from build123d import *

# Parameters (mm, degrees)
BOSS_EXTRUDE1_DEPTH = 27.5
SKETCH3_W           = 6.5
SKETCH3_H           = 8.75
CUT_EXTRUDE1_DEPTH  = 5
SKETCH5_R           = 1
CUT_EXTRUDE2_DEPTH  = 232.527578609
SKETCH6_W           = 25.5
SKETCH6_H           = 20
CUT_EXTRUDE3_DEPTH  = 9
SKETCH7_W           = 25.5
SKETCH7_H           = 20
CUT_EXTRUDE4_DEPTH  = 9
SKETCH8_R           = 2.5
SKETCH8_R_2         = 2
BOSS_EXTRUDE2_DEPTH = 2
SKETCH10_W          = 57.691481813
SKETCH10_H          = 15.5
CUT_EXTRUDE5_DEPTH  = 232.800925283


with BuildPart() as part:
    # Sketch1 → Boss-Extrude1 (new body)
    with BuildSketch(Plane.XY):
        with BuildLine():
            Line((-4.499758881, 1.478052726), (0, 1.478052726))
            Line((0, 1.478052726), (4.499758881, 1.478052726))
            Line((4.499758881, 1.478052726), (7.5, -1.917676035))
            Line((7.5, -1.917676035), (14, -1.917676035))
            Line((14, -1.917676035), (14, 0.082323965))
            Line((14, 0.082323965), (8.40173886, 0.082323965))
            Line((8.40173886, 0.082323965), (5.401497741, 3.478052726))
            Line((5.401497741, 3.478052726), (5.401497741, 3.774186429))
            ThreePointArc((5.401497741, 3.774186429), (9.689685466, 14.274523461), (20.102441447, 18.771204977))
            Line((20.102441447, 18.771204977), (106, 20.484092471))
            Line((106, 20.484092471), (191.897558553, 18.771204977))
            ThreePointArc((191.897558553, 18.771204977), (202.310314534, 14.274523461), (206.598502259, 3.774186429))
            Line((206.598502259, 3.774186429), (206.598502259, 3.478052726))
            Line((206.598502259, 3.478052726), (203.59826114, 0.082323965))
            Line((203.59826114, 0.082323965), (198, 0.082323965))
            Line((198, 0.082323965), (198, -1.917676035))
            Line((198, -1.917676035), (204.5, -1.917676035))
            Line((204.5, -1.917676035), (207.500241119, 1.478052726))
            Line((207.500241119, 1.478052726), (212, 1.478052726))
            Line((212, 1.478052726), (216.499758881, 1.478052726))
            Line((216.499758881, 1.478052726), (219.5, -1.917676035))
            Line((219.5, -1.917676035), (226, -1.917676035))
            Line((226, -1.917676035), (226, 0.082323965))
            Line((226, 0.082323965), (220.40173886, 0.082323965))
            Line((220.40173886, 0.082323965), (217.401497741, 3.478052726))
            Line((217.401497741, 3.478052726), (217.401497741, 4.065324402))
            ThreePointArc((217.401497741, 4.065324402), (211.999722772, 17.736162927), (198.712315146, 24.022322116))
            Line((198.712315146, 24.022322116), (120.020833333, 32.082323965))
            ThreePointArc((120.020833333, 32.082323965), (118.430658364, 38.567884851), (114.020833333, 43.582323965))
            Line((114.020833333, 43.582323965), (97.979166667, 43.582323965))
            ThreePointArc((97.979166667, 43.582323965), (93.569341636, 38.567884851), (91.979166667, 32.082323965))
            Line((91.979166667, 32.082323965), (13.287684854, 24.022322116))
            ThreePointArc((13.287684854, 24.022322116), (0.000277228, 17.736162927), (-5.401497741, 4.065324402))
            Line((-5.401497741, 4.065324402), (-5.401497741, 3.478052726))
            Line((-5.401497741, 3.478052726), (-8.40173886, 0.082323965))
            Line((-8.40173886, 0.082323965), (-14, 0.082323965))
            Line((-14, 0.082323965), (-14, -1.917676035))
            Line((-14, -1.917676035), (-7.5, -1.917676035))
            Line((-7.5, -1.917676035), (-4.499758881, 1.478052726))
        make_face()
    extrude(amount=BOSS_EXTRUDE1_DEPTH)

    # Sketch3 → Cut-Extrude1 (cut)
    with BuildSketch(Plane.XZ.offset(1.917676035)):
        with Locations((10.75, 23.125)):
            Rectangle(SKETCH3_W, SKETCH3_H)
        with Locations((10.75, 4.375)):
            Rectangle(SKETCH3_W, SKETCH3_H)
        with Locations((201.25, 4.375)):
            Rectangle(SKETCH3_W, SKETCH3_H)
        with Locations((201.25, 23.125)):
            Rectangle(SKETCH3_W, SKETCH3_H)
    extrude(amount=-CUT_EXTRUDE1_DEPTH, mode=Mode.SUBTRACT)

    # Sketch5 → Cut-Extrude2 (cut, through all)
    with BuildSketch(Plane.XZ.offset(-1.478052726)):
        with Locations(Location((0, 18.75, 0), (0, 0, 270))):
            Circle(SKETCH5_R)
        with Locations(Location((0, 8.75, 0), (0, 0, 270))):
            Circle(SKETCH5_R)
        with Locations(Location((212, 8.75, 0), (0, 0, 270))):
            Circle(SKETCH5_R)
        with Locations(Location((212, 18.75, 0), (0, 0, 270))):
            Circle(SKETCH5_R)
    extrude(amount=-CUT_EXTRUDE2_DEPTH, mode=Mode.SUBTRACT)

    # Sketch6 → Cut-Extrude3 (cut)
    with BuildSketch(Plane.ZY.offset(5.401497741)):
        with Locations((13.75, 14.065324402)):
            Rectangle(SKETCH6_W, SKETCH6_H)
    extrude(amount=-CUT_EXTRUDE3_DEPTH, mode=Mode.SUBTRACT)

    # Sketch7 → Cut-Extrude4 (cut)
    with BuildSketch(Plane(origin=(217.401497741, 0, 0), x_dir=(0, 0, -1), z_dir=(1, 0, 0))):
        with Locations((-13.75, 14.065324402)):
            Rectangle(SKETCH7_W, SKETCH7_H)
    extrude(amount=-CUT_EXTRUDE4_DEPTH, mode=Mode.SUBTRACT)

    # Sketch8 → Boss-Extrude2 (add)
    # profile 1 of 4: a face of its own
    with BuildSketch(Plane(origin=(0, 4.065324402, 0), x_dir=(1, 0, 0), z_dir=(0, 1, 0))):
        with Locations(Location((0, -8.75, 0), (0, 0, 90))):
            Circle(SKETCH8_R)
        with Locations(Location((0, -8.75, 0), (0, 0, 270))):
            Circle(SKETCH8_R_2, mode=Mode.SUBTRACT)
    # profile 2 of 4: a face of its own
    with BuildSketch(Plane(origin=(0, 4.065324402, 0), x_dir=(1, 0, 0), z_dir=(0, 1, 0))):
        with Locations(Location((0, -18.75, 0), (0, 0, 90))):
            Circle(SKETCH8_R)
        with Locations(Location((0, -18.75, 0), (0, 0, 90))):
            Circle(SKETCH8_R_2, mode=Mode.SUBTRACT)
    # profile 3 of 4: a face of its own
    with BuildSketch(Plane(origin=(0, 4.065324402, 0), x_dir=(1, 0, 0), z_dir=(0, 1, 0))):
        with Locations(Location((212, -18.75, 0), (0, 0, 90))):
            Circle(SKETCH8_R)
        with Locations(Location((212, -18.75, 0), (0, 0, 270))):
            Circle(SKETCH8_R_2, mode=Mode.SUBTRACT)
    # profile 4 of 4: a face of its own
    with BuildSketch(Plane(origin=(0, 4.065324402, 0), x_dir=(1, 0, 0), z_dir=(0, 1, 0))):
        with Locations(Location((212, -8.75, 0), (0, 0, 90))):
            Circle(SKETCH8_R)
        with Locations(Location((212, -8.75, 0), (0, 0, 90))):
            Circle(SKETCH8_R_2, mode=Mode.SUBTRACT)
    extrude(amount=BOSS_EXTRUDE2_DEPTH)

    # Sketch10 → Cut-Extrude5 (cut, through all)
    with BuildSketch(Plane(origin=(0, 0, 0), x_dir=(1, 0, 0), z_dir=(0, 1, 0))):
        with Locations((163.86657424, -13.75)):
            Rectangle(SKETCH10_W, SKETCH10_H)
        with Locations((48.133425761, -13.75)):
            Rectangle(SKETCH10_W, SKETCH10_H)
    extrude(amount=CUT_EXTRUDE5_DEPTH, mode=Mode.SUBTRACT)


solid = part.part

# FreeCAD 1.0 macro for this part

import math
import FreeCAD as App
import Part
import Sketcher
Q = App.Units.Quantity


def add_polygon(sketch, points):
    """Adds a closed chain of lines whose ends are joined by coincident constraints."""
    first, n = sketch.GeometryCount, len(points)
    for a, b in zip(points, points[1:] + points[:1]):
        sketch.addGeometry(Part.LineSegment(App.Vector(*a, 0), App.Vector(*b, 0)), False)
    for i in range(n):
        sketch.addConstraint(Sketcher.Constraint("Coincident", first + i, 2, first + (i + 1) % n, 1))

doc = App.newDocument("Part")
params = doc.addObject("Spreadsheet::Sheet", "Params")
for row, (alias, value) in enumerate([
    ("sketch1_radius", "15 mm"),
    ("sketch1_radius2", "20 mm"),
    ("sketch1_height", "2 mm"),
    ("sketch1_width", "6.5 mm"),
    ("pad1_length", "27.5 mm"),
    ("sketch2_width", "6.5 mm"),
    ("sketch2_height", "8.75 mm"),
    ("pocket1_length", "5 mm"),
    ("sketch3_diameter", "2 mm"),
    ("sketch4_width", "20 mm"),
    ("sketch4_height", "25.5 mm"),
    ("pocket3_length", "9 mm"),
    ("sketch5_width", "20 mm"),
    ("sketch5_height", "25.5 mm"),
    ("pocket4_length", "9 mm"),
    ("sketch6_diameter", "5 mm"),
    ("sketch6_diameter2", "4 mm"),
    ("pad2_length", "2 mm"),
    ("sketch7_height", "15.5 mm"),
], start=1):
    params.set(f"A{row}", alias)
    params.set(f"B{row}", "=" + value)
    params.setAlias(f"B{row}", alias)

body = doc.addObject("PartDesign::Body", "Body")

# Sketch on XY plane
sketch1 = body.newObject("Sketcher::SketchObject", "Sketch")
sketch1.AttachmentSupport = (doc.getObject("XY_Plane"), [""])
sketch1.MapMode = "FlatFace"
sketch1.addGeometry([
    Part.LineSegment(App.Vector(-4.499759, 1.478053, 0), App.Vector(4.499759, 1.478053, 0)),  # 0
    Part.LineSegment(App.Vector(4.499759, 1.478053, 0), App.Vector(7.5, -1.917676, 0)),  # 1
    Part.LineSegment(App.Vector(7.5, -1.917676, 0), App.Vector(14, -1.917676, 0)),  # 2
    Part.LineSegment(App.Vector(14, -1.917676, 0), App.Vector(14, 0.082324, 0)),  # 3
    Part.LineSegment(App.Vector(14, 0.082324, 0), App.Vector(8.401739, 0.082324, 0)),  # 4
    Part.LineSegment(App.Vector(8.401739, 0.082324, 0), App.Vector(5.401498, 3.478053, 0)),  # 5
    Part.LineSegment(App.Vector(5.401498, 3.478053, 0), App.Vector(5.401498, 3.774186, 0)),  # 6
    Part.ArcOfCircle(Part.Circle(App.Vector(20.401498, 3.774186, 0), App.Vector(0, 0, 1), 15), math.radians(91.142387), math.radians(180)),  # 7
    Part.LineSegment(App.Vector(20.102441, 18.771205, 0), App.Vector(106, 20.484092, 0)),  # 8
    Part.LineSegment(App.Vector(106, 20.484092, 0), App.Vector(191.897559, 18.771205, 0)),  # 9
    Part.ArcOfCircle(Part.Circle(App.Vector(191.598502, 3.774186, 0), App.Vector(0, 0, 1), 15), math.radians(0), math.radians(88.857613)),  # 10
    Part.LineSegment(App.Vector(206.598502, 3.774186, 0), App.Vector(206.598502, 3.478053, 0)),  # 11
    Part.LineSegment(App.Vector(206.598502, 3.478053, 0), App.Vector(203.598261, 0.082324, 0)),  # 12
    Part.LineSegment(App.Vector(203.598261, 0.082324, 0), App.Vector(198, 0.082324, 0)),  # 13
    Part.LineSegment(App.Vector(198, 0.082324, 0), App.Vector(198, -1.917676, 0)),  # 14
    Part.LineSegment(App.Vector(198, -1.917676, 0), App.Vector(204.5, -1.917676, 0)),  # 15
    Part.LineSegment(App.Vector(204.5, -1.917676, 0), App.Vector(207.500241, 1.478053, 0)),  # 16
    Part.LineSegment(App.Vector(207.500241, 1.478053, 0), App.Vector(216.499759, 1.478053, 0)),  # 17
    Part.LineSegment(App.Vector(216.499759, 1.478053, 0), App.Vector(219.5, -1.917676, 0)),  # 18
    Part.LineSegment(App.Vector(219.5, -1.917676, 0), App.Vector(226, -1.917676, 0)),  # 19
    Part.LineSegment(App.Vector(226, -1.917676, 0), App.Vector(226, 0.082324, 0)),  # 20
    Part.LineSegment(App.Vector(226, 0.082324, 0), App.Vector(220.401739, 0.082324, 0)),  # 21
    Part.LineSegment(App.Vector(220.401739, 0.082324, 0), App.Vector(217.401498, 3.478053, 0)),  # 22
    Part.LineSegment(App.Vector(217.401498, 3.478053, 0), App.Vector(217.401498, 4.065324, 0)),  # 23
    Part.ArcOfCircle(Part.Circle(App.Vector(197.401498, 4.065324, 0), App.Vector(0, 0, 1), 20), math.radians(0), math.radians(86.242091)),  # 24
    Part.LineSegment(App.Vector(198.712315, 24.022322, 0), App.Vector(120.020833, 32.082324, 0)),  # 25
    Part.ArcOfCircle(Part.Circle(App.Vector(106, 32.082324, 0), App.Vector(0, 0, 1), 14.020833), math.radians(0), math.radians(55.105623)),  # 26
    Part.LineSegment(App.Vector(114.020833, 43.582324, 0), App.Vector(97.979167, 43.582324, 0)),  # 27
    Part.ArcOfCircle(Part.Circle(App.Vector(106, 32.082324, 0), App.Vector(0, 0, 1), 14.020833), math.radians(124.894377), math.radians(180)),  # 28
    Part.LineSegment(App.Vector(91.979167, 32.082324, 0), App.Vector(13.287685, 24.022322, 0)),  # 29
    Part.ArcOfCircle(Part.Circle(App.Vector(14.598502, 4.065324, 0), App.Vector(0, 0, 1), 20), math.radians(93.757909), math.radians(180)),  # 30
    Part.LineSegment(App.Vector(-5.401498, 4.065324, 0), App.Vector(-5.401498, 3.478053, 0)),  # 31
    Part.LineSegment(App.Vector(-5.401498, 3.478053, 0), App.Vector(-8.401739, 0.082324, 0)),  # 32
    Part.LineSegment(App.Vector(-8.401739, 0.082324, 0), App.Vector(-14, 0.082324, 0)),  # 33
    Part.LineSegment(App.Vector(-14, 0.082324, 0), App.Vector(-14, -1.917676, 0)),  # 34
    Part.LineSegment(App.Vector(-14, -1.917676, 0), App.Vector(-7.5, -1.917676, 0)),  # 35
    Part.LineSegment(App.Vector(-7.5, -1.917676, 0), App.Vector(-4.499759, 1.478053, 0)),  # 36
], False)
sketch1.addConstraint([
    Sketcher.Constraint("Coincident", 0, 2, 1, 1),
    Sketcher.Constraint("Coincident", 1, 2, 2, 1),
    Sketcher.Constraint("Coincident", 2, 2, 3, 1),
    Sketcher.Constraint("Coincident", 3, 2, 4, 1),
    Sketcher.Constraint("Coincident", 4, 2, 5, 1),
    Sketcher.Constraint("Coincident", 5, 2, 6, 1),
    Sketcher.Constraint("Tangent", 6, 2, 7, 2),
    Sketcher.Constraint("Tangent", 7, 1, 8, 1),
    Sketcher.Constraint("Coincident", 8, 2, 9, 1),
    Sketcher.Constraint("Tangent", 9, 2, 10, 2),
    Sketcher.Constraint("Tangent", 10, 1, 11, 1),
    Sketcher.Constraint("Coincident", 11, 2, 12, 1),
    Sketcher.Constraint("Coincident", 12, 2, 13, 1),
    Sketcher.Constraint("Coincident", 13, 2, 14, 1),
    Sketcher.Constraint("Coincident", 14, 2, 15, 1),
    Sketcher.Constraint("Coincident", 15, 2, 16, 1),
    Sketcher.Constraint("Coincident", 16, 2, 17, 1),
    Sketcher.Constraint("Coincident", 17, 2, 18, 1),
    Sketcher.Constraint("Coincident", 18, 2, 19, 1),
    Sketcher.Constraint("Coincident", 19, 2, 20, 1),
    Sketcher.Constraint("Coincident", 20, 2, 21, 1),
    Sketcher.Constraint("Coincident", 21, 2, 22, 1),
    Sketcher.Constraint("Coincident", 22, 2, 23, 1),
    Sketcher.Constraint("Tangent", 23, 2, 24, 1),
    Sketcher.Constraint("Coincident", 24, 2, 25, 1),
    Sketcher.Constraint("Coincident", 25, 2, 26, 1),
    Sketcher.Constraint("Coincident", 26, 2, 27, 1),
    Sketcher.Constraint("Coincident", 27, 2, 28, 1),
    Sketcher.Constraint("Coincident", 28, 2, 29, 1),
    Sketcher.Constraint("Coincident", 29, 2, 30, 1),
    Sketcher.Constraint("Tangent", 30, 2, 31, 1),
    Sketcher.Constraint("Coincident", 31, 2, 32, 1),
    Sketcher.Constraint("Coincident", 32, 2, 33, 1),
    Sketcher.Constraint("Coincident", 33, 2, 34, 1),
    Sketcher.Constraint("Coincident", 34, 2, 35, 1),
    Sketcher.Constraint("Coincident", 35, 2, 36, 1),
    Sketcher.Constraint("Coincident", 36, 2, 0, 1),
    Sketcher.Constraint("Horizontal", 0),
    Sketcher.Constraint("Horizontal", 2),
    Sketcher.Constraint("Vertical", 3),
    Sketcher.Constraint("Horizontal", 4),
    Sketcher.Constraint("Vertical", 6),
    Sketcher.Constraint("Vertical", 11),
    Sketcher.Constraint("Horizontal", 13),
    Sketcher.Constraint("Vertical", 14),
    Sketcher.Constraint("Horizontal", 15),
    Sketcher.Constraint("Horizontal", 17),
    Sketcher.Constraint("Horizontal", 19),
    Sketcher.Constraint("Vertical", 20),
    Sketcher.Constraint("Horizontal", 21),
    Sketcher.Constraint("Vertical", 23),
    Sketcher.Constraint("Horizontal", 27),
    Sketcher.Constraint("Vertical", 31),
    Sketcher.Constraint("Horizontal", 33),
    Sketcher.Constraint("Vertical", 34),
    Sketcher.Constraint("Horizontal", 35),
    Sketcher.Constraint("Coincident", 28, 3, 26, 3),
    Sketcher.Constraint("Equal", 7, 10),
    Sketcher.Constraint("Equal", 26, 28),
    Sketcher.Constraint("Equal", 24, 30),
    Sketcher.Constraint("Symmetric", 5, 2, 31, 2, -2),
    Sketcher.Constraint("Symmetric", 4, 2, 32, 2, -2),
    Sketcher.Constraint("Symmetric", 2, 2, 34, 2, -2),
    Sketcher.Constraint("Parallel", 1, 5),
    Sketcher.Constraint("Parallel", 12, 16),
    Sketcher.Constraint("Parallel", 5, 18),
    Sketcher.Constraint("Parallel", 18, 22),
    Sketcher.Constraint("Parallel", 16, 32),
    Sketcher.Constraint("Parallel", 32, 36),
    Sketcher.Constraint("Horizontal", 7, 3, 10, 3),
    Sketcher.Constraint("Horizontal", 24, 3, 30, 3),
    Sketcher.Constraint("Horizontal", 5, 2, 11, 2),
    Sketcher.Constraint("Horizontal", 4, 2, 12, 2),
    Sketcher.Constraint("Horizontal", 2, 2, 14, 2),
    Sketcher.Constraint("Horizontal", 0, 2, 16, 2),
    Sketcher.Constraint("Horizontal", 15, 2, 18, 2),
    Sketcher.Constraint("Horizontal", 13, 2, 20, 2),
    Sketcher.Constraint("Horizontal", 11, 2, 22, 2),
    Sketcher.Constraint("Horizontal", 28, 3, 25, 2),
    Sketcher.Constraint("Horizontal", 25, 2, 28, 2),
    Sketcher.Constraint("Horizontal", 24, 2, 29, 2),
    Sketcher.Constraint("Vertical", 28, 3, 8, 2),
    Sketcher.Constraint("Equal", 4, 13),
    Sketcher.Constraint("Equal", 2, 15),
    Sketcher.Constraint("Equal", 0, 17),
    Sketcher.Constraint("Equal", 15, 19),
    Sketcher.Constraint("Equal", 13, 21),
    Sketcher.Constraint("Equal", 19, 35),
    Sketcher.Constraint("Equal", 1, 5),
    Sketcher.Constraint("Equal", 8, 9),
    Sketcher.Constraint("Radius", 7, Q("15 mm")),
    Sketcher.Constraint("Radius", 24, Q("20 mm")),
    Sketcher.Constraint("DistanceY", 3, 1, 3, 2, Q("2 mm")),
    Sketcher.Constraint("DistanceX", 2, 1, 2, 2, Q("6.5 mm")),
    Sketcher.Constraint("DistanceX", -1, 1, 26, 3, Q("106 mm")),
    Sketcher.Constraint("DistanceX", -1, 1, 2, 2, Q("14 mm")),
    Sketcher.Constraint("DistanceY", 1, 2, 28, 3, Q("34 mm")),
    Sketcher.Constraint("DistanceX", 26, 2, 25, 2, Q("6 mm")),
    Sketcher.Constraint("DistanceY", 25, 2, 26, 2, Q("11.5 mm")),
    Sketcher.Constraint("DistanceY", 24, 3, 26, 3, Q("28.017 mm")),
    Sketcher.Constraint("DistanceX", 4, 2, 4, 1, Q("5.598261 mm")),
    Sketcher.Constraint("DistanceY", 23, 1, 23, 2, Q("0.587272 mm")),
    Sketcher.Constraint("Distance", 1, Q("4.531271 mm")),
    Sketcher.Constraint("Distance", 25, Q("79.103179 mm")),
    Sketcher.Constraint("DistanceY", 6, 1, 6, 2, Q("0.296134 mm")),
    Sketcher.Constraint("DistanceX", -1, 1, 7, 1, Q("20.102441 mm")),
    Sketcher.Constraint("DistanceY", -1, 1, 7, 3, Q("3.774186 mm")),
])
sketch1.setExpression("Constraints[90]", "Params.sketch1_radius")
sketch1.setExpression("Constraints[91]", "Params.sketch1_radius2")
sketch1.setExpression("Constraints[92]", "Params.sketch1_height")
sketch1.setExpression("Constraints[93]", "Params.sketch1_width")
pad1 = body.newObject("PartDesign::Pad", "Pad")
pad1.Profile = sketch1
pad1.setExpression("Length", "Params.pad1_length")

# Sketch on XZ plane
sketch2 = body.newObject("Sketcher::SketchObject", "Sketch001")
sketch2.AttachmentSupport = (doc.getObject("XZ_Plane"), [""])
sketch2.MapMode = "FlatFace"
sketch2.AttachmentOffset = App.Placement(App.Vector(0, 0, 1.917676), App.Rotation())
add_polygon(sketch2, [(7.5, 27.5), (7.5, 18.75), (14, 18.75), (14, 27.5)])  # lines 0-3
add_polygon(sketch2, [(7.5, 8.75), (7.5, 0), (14, 0), (14, 8.75)])  # lines 4-7
add_polygon(sketch2, [(198, 8.75), (198, 0), (204.5, 0), (204.5, 8.75)])  # lines 8-11
add_polygon(sketch2, [(198, 27.5), (198, 18.75), (204.5, 18.75), (204.5, 27.5)])  # lines 12-15
sketch2.addConstraint([
    Sketcher.Constraint("Vertical", 0),
    Sketcher.Constraint("Horizontal", 1),
    Sketcher.Constraint("Vertical", 2),
    Sketcher.Constraint("Horizontal", 3),
    Sketcher.Constraint("Vertical", 4),
    Sketcher.Constraint("Horizontal", 5),
    Sketcher.Constraint("Vertical", 6),
    Sketcher.Constraint("Horizontal", 7),
    Sketcher.Constraint("Vertical", 8),
    Sketcher.Constraint("Horizontal", 9),
    Sketcher.Constraint("Vertical", 10),
    Sketcher.Constraint("Horizontal", 11),
    Sketcher.Constraint("Vertical", 12),
    Sketcher.Constraint("Horizontal", 13),
    Sketcher.Constraint("Vertical", 14),
    Sketcher.Constraint("Horizontal", 15),
    Sketcher.Constraint("PointOnObject", 4, 2, -1),
    Sketcher.Constraint("PointOnObject", 8, 2, -1),
    Sketcher.Constraint("Horizontal", 7, 2, 10, 2),
    Sketcher.Constraint("Horizontal", 1, 2, 12, 2),
    Sketcher.Constraint("Horizontal", 3, 2, 14, 2),
    Sketcher.Constraint("Vertical", 3, 2, 4, 2),
    Sketcher.Constraint("Vertical", 2, 2, 5, 2),
    Sketcher.Constraint("Vertical", 11, 2, 12, 2),
    Sketcher.Constraint("Vertical", 10, 2, 13, 2),
    Sketcher.Constraint("Equal", 7, 9),
    Sketcher.Constraint("Equal", 2, 4),
    Sketcher.Constraint("DistanceX", 1, 1, 1, 2, Q("6.5 mm")),
    Sketcher.Constraint("DistanceX", -1, 1, 1, 2, Q("14 mm")),
    Sketcher.Constraint("DistanceX", -1, 1, 8, 2, Q("198 mm")),
    Sketcher.Constraint("DistanceY", 6, 2, 1, 2, Q("10 mm")),
    Sketcher.Constraint("DistanceY", 0, 2, 0, 1, Q("8.75 mm")),
])
sketch2.setExpression("Constraints[43]", "Params.sketch2_width")
sketch2.setExpression("Constraints[47]", "Params.sketch2_height")
pocket1 = body.newObject("PartDesign::Pocket", "Pocket")
pocket1.Profile = sketch2
pocket1.setExpression("Length", "Params.pocket1_length")

# Sketch on XZ plane
sketch3 = body.newObject("Sketcher::SketchObject", "Sketch002")
sketch3.AttachmentSupport = (doc.getObject("XZ_Plane"), [""])
sketch3.MapMode = "FlatFace"
sketch3.AttachmentOffset = App.Placement(App.Vector(0, 0, -1.478053), App.Rotation())
sketch3.addGeometry([
    Part.Circle(App.Vector(0, 18.75, 0), App.Vector(0, 0, 1), 1),
    Part.Circle(App.Vector(0, 8.75, 0), App.Vector(0, 0, 1), 1),
    Part.Circle(App.Vector(212, 8.75, 0), App.Vector(0, 0, 1), 1),
    Part.Circle(App.Vector(212, 18.75, 0), App.Vector(0, 0, 1), 1),
], False)
sketch3.addConstraint([
    Sketcher.Constraint("Equal", 0, 1),
    Sketcher.Constraint("Equal", 1, 2),
    Sketcher.Constraint("Equal", 2, 3),
    Sketcher.Constraint("PointOnObject", 0, 3, -2),
    Sketcher.Constraint("PointOnObject", 1, 3, -2),
    Sketcher.Constraint("Horizontal", 1, 3, 2, 3),
    Sketcher.Constraint("Horizontal", 0, 3, 3, 3),
    Sketcher.Constraint("Vertical", 2, 3, 3, 3),
    Sketcher.Constraint("Diameter", 0, Q("2 mm")),
    Sketcher.Constraint("DistanceX", -1, 1, 2, 3, Q("212 mm")),
    Sketcher.Constraint("DistanceY", 1, 3, 0, 3, Q("10 mm")),
    Sketcher.Constraint("DistanceY", -1, 1, 0, 3, Q("18.75 mm")),
])
sketch3.setExpression("Constraints[8]", "Params.sketch3_diameter")
pocket2 = body.newObject("PartDesign::Pocket", "Pocket001")
pocket2.Profile = sketch3
pocket2.Type = "ThroughAll"

# Sketch on YZ plane
sketch4 = body.newObject("Sketcher::SketchObject", "Sketch003")
sketch4.AttachmentSupport = (doc.getObject("YZ_Plane"), [""])
sketch4.MapMode = "FlatFace"
sketch4.AttachmentOffset = App.Placement(App.Vector(0, 0, -5.401498), App.Rotation())
add_polygon(sketch4, [(24.065324, 1), (4.065324, 1), (4.065324, 26.5), (24.065324, 26.5)])  # lines 0-3
sketch4.addConstraint([
    Sketcher.Constraint("Horizontal", 0),
    Sketcher.Constraint("Vertical", 1),
    Sketcher.Constraint("Horizontal", 2),
    Sketcher.Constraint("Vertical", 3),
    Sketcher.Constraint("DistanceX", 0, 2, 0, 1, Q("20 mm")),
    Sketcher.Constraint("DistanceY", 1, 1, 1, 2, Q("25.5 mm")),
    Sketcher.Constraint("DistanceY", -1, 1, 0, 2, Q("1 mm")),
    Sketcher.Constraint("DistanceX", -1, 1, 0, 2, Q("4.065324 mm")),
])
sketch4.setExpression("Constraints[8]", "Params.sketch4_width")
sketch4.setExpression("Constraints[9]", "Params.sketch4_height")
pocket3 = body.newObject("PartDesign::Pocket", "Pocket002")
pocket3.Profile = sketch4
pocket3.setExpression("Length", "Params.pocket3_length")
pocket3.Reversed = True

# Sketch on YZ plane
sketch5 = body.newObject("Sketcher::SketchObject", "Sketch004")
sketch5.AttachmentSupport = (doc.getObject("YZ_Plane"), [""])
sketch5.MapMode = "FlatFace"
sketch5.AttachmentOffset = App.Placement(App.Vector(0, 0, 217.401498), App.Rotation())
add_polygon(sketch5, [(24.065324, 26.5), (4.065324, 26.5), (4.065324, 1), (24.065324, 1)])  # lines 0-3
sketch5.addConstraint([
    Sketcher.Constraint("Horizontal", 0),
    Sketcher.Constraint("Vertical", 1),
    Sketcher.Constraint("Horizontal", 2),
    Sketcher.Constraint("Vertical", 3),
    Sketcher.Constraint("DistanceX", 0, 2, 0, 1, Q("20 mm")),
    Sketcher.Constraint("DistanceY", 1, 2, 1, 1, Q("25.5 mm")),
    Sketcher.Constraint("DistanceY", -1, 1, 1, 2, Q("1 mm")),
    Sketcher.Constraint("DistanceX", -1, 1, 0, 2, Q("4.065324 mm")),
])
sketch5.setExpression("Constraints[8]", "Params.sketch5_width")
sketch5.setExpression("Constraints[9]", "Params.sketch5_height")
pocket4 = body.newObject("PartDesign::Pocket", "Pocket003")
pocket4.Profile = sketch5
pocket4.setExpression("Length", "Params.pocket4_length")

# Sketch on XZ plane
sketch6 = body.newObject("Sketcher::SketchObject", "Sketch005")
sketch6.AttachmentSupport = (doc.getObject("XZ_Plane"), [""])
sketch6.MapMode = "FlatFace"
sketch6.AttachmentOffset = App.Placement(App.Vector(0, 0, -4.065324), App.Rotation())
sketch6.addGeometry([
    Part.Circle(App.Vector(0, 8.75, 0), App.Vector(0, 0, 1), 2.5),  # 0
    Part.Circle(App.Vector(0, 8.75, 0), App.Vector(0, 0, 1), 2),  # 1
    Part.Circle(App.Vector(0, 18.75, 0), App.Vector(0, 0, 1), 2.5),  # 2
    Part.Circle(App.Vector(0, 18.75, 0), App.Vector(0, 0, 1), 2),  # 3
    Part.Circle(App.Vector(212, 18.75, 0), App.Vector(0, 0, 1), 2.5),  # 4
    Part.Circle(App.Vector(212, 18.75, 0), App.Vector(0, 0, 1), 2),  # 5
    Part.Circle(App.Vector(212, 8.75, 0), App.Vector(0, 0, 1), 2.5),  # 6
    Part.Circle(App.Vector(212, 8.75, 0), App.Vector(0, 0, 1), 2),  # 7
], False)
sketch6.addConstraint([
    Sketcher.Constraint("Coincident", 1, 3, 0, 3),
    Sketcher.Constraint("Coincident", 3, 3, 2, 3),
    Sketcher.Constraint("Coincident", 5, 3, 4, 3),
    Sketcher.Constraint("Coincident", 7, 3, 6, 3),
    Sketcher.Constraint("Equal", 0, 2),
    Sketcher.Constraint("Equal", 1, 3),
    Sketcher.Constraint("Equal", 2, 4),
    Sketcher.Constraint("Equal", 3, 5),
    Sketcher.Constraint("Equal", 4, 6),
    Sketcher.Constraint("Equal", 5, 7),
    Sketcher.Constraint("PointOnObject", 0, 3, -2),
    Sketcher.Constraint("PointOnObject", 2, 3, -2),
    Sketcher.Constraint("Horizontal", 3, 3, 4, 3),
    Sketcher.Constraint("Horizontal", 1, 3, 6, 3),
    Sketcher.Constraint("Vertical", 5, 3, 6, 3),
    Sketcher.Constraint("Diameter", 0, Q("5 mm")),
    Sketcher.Constraint("Diameter", 1, Q("4 mm")),
    Sketcher.Constraint("DistanceX", -1, 1, 4, 3, Q("212 mm")),
    Sketcher.Constraint("DistanceY", 0, 3, 2, 3, Q("10 mm")),
    Sketcher.Constraint("DistanceY", -1, 1, 0, 3, Q("8.75 mm")),
])
sketch6.setExpression("Constraints[15]", "Params.sketch6_diameter")
sketch6.setExpression("Constraints[16]", "Params.sketch6_diameter2")
pad2 = body.newObject("PartDesign::Pad", "Pad001")
pad2.Profile = sketch6
pad2.setExpression("Length", "Params.pad2_length")
pad2.Reversed = True

# Sketch on XZ plane
sketch7 = body.newObject("Sketcher::SketchObject", "Sketch006")
sketch7.AttachmentSupport = (doc.getObject("XZ_Plane"), [""])
sketch7.MapMode = "FlatFace"
add_polygon(sketch7, [(135.020833, 6), (135.020833, 21.5), (192.712315, 21.5), (192.712315, 6)])  # lines 0-3
add_polygon(sketch7, [(19.287685, 6), (19.287685, 21.5), (76.979167, 21.5), (76.979167, 6)])  # lines 4-7
sketch7.addConstraint([
    Sketcher.Constraint("Vertical", 0),
    Sketcher.Constraint("Horizontal", 1),
    Sketcher.Constraint("Vertical", 2),
    Sketcher.Constraint("Horizontal", 3),
    Sketcher.Constraint("Vertical", 4),
    Sketcher.Constraint("Horizontal", 5),
    Sketcher.Constraint("Vertical", 6),
    Sketcher.Constraint("Horizontal", 7),
    Sketcher.Constraint("Horizontal", 1, 2, 4, 2),
    Sketcher.Constraint("Horizontal", 3, 2, 6, 2),
    Sketcher.Constraint("Equal", 3, 5),
    Sketcher.Constraint("DistanceY", 0, 1, 0, 2, Q("15.5 mm")),
    Sketcher.Constraint("DistanceY", -1, 1, 2, 2, Q("6 mm")),
    Sketcher.Constraint("DistanceX", 1, 1, 1, 2, Q("57.691482 mm")),
    Sketcher.Constraint("DistanceX", 4, 2, 0, 2, Q("115.733148 mm")),
    Sketcher.Constraint("DistanceX", -1, 1, 0, 2, Q("135.020833 mm")),
])
sketch7.setExpression("Constraints[19]", "Params.sketch7_height")
pocket5 = body.newObject("PartDesign::Pocket", "Pocket004")
pocket5.Profile = sketch7
pocket5.Type = "ThroughAll"

doc.recompute()
